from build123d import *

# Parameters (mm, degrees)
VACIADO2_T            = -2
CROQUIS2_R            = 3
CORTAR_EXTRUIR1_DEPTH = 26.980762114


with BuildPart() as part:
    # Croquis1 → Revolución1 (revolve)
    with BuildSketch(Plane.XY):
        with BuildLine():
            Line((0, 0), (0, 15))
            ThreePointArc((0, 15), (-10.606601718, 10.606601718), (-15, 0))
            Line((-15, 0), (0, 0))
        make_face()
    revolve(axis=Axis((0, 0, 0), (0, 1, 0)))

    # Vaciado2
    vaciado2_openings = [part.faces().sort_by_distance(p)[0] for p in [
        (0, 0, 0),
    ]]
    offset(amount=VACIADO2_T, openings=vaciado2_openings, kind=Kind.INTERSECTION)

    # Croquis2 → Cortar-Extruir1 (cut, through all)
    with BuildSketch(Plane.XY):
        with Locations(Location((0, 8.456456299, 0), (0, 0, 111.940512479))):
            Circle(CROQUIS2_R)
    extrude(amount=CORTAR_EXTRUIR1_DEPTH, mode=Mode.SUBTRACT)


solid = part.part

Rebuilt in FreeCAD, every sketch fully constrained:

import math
import FreeCAD as App
import Part
import Sketcher
from FreeCAD import Vector
Q = App.Units.Quantity


def faces_at(feature, points):
    """Names of the faces that lie closest to the given points."""
    faces = feature.Shape.Faces
    near = lambda p: min(range(len(faces)), key=lambda i: faces[i].distToShape(Part.Vertex(*p))[0])
    return sorted({f"Face{near(p) + 1}" for p in points})

doc = App.newDocument("Part")
body = doc.addObject("PartDesign::Body", "Body")

# Sketch on XY plane
sketch1 = body.newObject("Sketcher::SketchObject", "Sketch")
sketch1.AttachmentSupport = (doc.getObject("XY_Plane"), [""])
sketch1.MapMode = "FlatFace"
sketch1.addGeometry(Part.LineSegment(Vector(0, 0, 0), Vector(0, 15, 0)), False)
sketch1.addGeometry(Part.ArcOfCircle(Part.Circle(Vector(0, 0, 0), Vector(0, 0, 1), 15), math.radians(90), math.radians(180)), False)
sketch1.addGeometry(Part.LineSegment(Vector(-15, 0, 0), Vector(0, 0, 0)), False)
sketch1.addConstraint(Sketcher.Constraint("Coincident", 0, 2, 1, 1))
sketch1.addConstraint(Sketcher.Constraint("Coincident", 1, 2, 2, 1))
sketch1.addConstraint(Sketcher.Constraint("Coincident", 2, 2, 0, 1))
sketch1.addConstraint(Sketcher.Constraint("Vertical", 0))
sketch1.addConstraint(Sketcher.Constraint("Horizontal", 2))
sketch1.addConstraint(Sketcher.Constraint("Coincident", 1, 3, -1, 1))
sketch1.addConstraint(Sketcher.Constraint("Coincident", 2, 2, -1, 1))
sketch1.addConstraint(Sketcher.Constraint("Radius", 1, Q("15 mm")))
revolution = body.newObject("PartDesign::Revolution", "Revolution")
revolution.Profile = sketch1
revolution.ReferenceAxis = (sketch1, ["V_Axis"])
revolution.Angle = 360
doc.recompute()

thickness = body.newObject("PartDesign::Thickness", "Thickness")
thickness.Base = (revolution, faces_at(revolution, [(0, 0, 0)]))
thickness.Value = 2
thickness.Reversed = True
thickness.Join = "Intersection"

# Sketch on XY plane
sketch2 = body.newObject("Sketcher::SketchObject", "Sketch001")
sketch2.AttachmentSupport = (doc.getObject("XY_Plane"), [""])
sketch2.MapMode = "FlatFace"
sketch2.addGeometry(Part.Circle(Vector(0, 8.456456, 0), Vector(0, 0, 1), 3), False)
sketch2.addConstraint(Sketcher.Constraint("PointOnObject", 0, 3, -2))
sketch2.addConstraint(Sketcher.Constraint("Diameter", 0, Q("6 mm")))
sketch2.addConstraint(Sketcher.Constraint("DistanceY", -1, 1, 0, 3, Q("8.456456 mm")))
pocket1 = body.newObject("PartDesign::Pocket", "Pocket")
pocket1.Profile = sketch2
pocket1.Type = "ThroughAll"
pocket1.Reversed = True

doc.recompute()
